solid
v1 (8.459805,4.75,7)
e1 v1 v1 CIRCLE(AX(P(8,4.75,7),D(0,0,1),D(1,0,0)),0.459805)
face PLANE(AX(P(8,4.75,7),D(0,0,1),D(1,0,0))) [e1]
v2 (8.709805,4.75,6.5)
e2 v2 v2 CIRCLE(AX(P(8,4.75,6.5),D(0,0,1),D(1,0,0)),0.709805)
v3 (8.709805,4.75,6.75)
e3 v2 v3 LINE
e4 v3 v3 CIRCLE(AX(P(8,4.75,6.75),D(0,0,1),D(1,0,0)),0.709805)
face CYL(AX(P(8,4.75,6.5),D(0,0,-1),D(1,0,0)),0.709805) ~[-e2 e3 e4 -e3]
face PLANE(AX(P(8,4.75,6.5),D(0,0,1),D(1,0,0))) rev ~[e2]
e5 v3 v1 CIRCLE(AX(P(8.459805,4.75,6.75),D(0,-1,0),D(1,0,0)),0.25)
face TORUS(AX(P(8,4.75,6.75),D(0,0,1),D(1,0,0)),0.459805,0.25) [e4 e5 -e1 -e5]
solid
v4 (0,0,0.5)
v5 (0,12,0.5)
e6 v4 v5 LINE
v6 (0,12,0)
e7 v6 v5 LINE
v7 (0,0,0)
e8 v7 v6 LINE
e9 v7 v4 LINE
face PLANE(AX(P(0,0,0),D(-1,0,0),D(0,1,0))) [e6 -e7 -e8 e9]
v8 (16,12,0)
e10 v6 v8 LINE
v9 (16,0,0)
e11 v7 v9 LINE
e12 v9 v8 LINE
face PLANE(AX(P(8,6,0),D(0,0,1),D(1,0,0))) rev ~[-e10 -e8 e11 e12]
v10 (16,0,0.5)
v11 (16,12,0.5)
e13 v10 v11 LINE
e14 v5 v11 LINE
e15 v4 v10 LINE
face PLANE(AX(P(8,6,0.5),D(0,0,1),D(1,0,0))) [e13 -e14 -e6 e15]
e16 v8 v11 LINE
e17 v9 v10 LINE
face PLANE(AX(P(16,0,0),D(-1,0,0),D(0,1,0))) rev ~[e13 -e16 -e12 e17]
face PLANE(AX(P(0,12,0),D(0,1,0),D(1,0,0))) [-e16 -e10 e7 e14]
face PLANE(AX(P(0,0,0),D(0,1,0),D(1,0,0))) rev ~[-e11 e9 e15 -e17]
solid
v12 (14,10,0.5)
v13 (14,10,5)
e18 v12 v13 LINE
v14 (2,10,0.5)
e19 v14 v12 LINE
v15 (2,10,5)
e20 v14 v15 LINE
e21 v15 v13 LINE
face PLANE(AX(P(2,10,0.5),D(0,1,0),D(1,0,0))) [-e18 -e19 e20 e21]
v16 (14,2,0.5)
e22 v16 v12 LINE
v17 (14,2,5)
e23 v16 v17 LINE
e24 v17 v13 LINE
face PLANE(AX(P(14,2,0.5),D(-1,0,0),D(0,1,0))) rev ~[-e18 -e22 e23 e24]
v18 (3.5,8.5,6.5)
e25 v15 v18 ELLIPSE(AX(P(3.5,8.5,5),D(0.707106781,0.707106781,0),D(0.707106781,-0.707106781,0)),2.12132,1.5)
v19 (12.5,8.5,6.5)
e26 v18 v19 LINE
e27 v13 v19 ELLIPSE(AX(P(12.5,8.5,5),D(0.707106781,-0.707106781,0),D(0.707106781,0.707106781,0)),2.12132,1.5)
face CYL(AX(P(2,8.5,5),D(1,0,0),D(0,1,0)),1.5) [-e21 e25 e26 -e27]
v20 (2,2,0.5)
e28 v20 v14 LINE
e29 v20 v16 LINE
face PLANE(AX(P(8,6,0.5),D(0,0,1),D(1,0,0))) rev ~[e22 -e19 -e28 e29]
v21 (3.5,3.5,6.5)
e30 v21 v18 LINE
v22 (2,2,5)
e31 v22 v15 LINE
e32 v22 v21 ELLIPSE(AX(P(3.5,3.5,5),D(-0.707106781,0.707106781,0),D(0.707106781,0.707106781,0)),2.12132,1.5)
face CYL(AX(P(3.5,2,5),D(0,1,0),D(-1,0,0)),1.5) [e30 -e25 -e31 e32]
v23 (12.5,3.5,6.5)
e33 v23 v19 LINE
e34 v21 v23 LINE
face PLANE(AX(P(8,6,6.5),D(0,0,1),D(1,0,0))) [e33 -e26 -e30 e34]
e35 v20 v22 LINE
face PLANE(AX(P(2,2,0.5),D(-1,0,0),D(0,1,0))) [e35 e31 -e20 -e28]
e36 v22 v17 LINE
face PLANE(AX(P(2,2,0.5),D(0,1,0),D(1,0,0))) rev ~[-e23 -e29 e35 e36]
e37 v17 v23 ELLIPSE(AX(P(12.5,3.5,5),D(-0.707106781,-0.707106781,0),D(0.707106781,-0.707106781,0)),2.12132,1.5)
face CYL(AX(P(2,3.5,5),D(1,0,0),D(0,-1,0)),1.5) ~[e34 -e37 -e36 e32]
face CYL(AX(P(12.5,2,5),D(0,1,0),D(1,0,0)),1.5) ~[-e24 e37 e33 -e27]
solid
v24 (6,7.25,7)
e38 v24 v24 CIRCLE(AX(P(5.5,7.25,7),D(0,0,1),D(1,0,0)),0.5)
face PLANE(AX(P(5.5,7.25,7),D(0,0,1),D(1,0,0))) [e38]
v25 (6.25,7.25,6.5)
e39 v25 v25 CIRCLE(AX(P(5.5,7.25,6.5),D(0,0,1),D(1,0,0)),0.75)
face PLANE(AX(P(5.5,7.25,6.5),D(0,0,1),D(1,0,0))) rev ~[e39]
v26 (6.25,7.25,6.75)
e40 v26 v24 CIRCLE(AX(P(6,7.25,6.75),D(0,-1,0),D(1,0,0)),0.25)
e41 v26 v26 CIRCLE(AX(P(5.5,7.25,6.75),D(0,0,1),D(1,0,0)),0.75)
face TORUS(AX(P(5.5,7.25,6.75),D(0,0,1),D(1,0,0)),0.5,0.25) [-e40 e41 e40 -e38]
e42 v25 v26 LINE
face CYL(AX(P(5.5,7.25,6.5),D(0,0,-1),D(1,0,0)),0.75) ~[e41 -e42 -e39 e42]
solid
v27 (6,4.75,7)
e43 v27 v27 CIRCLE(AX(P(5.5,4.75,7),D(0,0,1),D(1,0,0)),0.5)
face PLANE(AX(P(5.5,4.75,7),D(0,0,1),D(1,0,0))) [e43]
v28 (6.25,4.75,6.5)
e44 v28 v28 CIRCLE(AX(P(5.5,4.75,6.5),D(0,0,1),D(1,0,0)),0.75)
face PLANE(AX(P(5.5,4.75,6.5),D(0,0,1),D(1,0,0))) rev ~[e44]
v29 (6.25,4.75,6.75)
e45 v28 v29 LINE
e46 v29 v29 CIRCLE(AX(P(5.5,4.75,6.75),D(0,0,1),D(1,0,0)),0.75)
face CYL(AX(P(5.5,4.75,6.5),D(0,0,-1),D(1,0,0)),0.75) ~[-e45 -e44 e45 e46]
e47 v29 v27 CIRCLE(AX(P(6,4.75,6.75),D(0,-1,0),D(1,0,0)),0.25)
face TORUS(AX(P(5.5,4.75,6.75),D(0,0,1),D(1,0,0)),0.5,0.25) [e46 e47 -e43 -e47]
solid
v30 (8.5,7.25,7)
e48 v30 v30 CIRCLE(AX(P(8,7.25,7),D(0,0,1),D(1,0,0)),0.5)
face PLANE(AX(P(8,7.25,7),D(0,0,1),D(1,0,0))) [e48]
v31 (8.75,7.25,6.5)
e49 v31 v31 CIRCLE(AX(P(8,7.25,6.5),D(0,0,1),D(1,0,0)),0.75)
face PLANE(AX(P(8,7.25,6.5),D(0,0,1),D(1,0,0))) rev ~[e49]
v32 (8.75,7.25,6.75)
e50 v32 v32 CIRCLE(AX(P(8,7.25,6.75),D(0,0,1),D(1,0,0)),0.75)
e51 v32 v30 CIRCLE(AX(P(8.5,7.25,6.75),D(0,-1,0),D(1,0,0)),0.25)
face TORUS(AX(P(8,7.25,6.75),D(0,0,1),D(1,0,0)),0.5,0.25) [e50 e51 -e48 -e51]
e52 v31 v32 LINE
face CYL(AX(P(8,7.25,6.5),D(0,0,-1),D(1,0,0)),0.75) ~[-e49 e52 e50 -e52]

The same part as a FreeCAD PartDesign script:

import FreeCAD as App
import Part
import Sketcher


def edges_at(feature, points):
    """Names of the edges that pass closest to the given points."""
    edges = feature.Shape.Edges
    near = lambda p: min(range(len(edges)), key=lambda i: edges[i].distToShape(Part.Vertex(*p))[0])
    return sorted({f"Edge{near(p) + 1}" for p in points})

doc = App.newDocument("Part")
body = doc.addObject("PartDesign::Body", "Body")

# Sketch on XY plane
sketch1 = doc.addObject("Sketcher::SketchObject", "Sketch")
body.addObject(sketch1)
sketch1.AttachmentSupport = (doc.XY_Plane, [""])
sketch1.MapMode = "FlatFace"
sketch1.addGeometry(Part.LineSegment(App.Vector(0, 12, 0), App.Vector(0, 0, 0)), False)
sketch1.addGeometry(Part.LineSegment(App.Vector(0, 0, 0), App.Vector(16, 0, 0)), False)
sketch1.addGeometry(Part.LineSegment(App.Vector(16, 0, 0), App.Vector(16, 12, 0)), False)
sketch1.addGeometry(Part.LineSegment(App.Vector(16, 12, 0), App.Vector(0, 12, 0)), False)
sketch1.addConstraint(Sketcher.Constraint("Coincident", 0, 2, 1, 1))
sketch1.addConstraint(Sketcher.Constraint("Coincident", 1, 2, 2, 1))
sketch1.addConstraint(Sketcher.Constraint("Coincident", 2, 2, 3, 1))
sketch1.addConstraint(Sketcher.Constraint("Coincident", 3, 2, 0, 1))
sketch1.addConstraint(Sketcher.Constraint("Vertical", 0))
sketch1.addConstraint(Sketcher.Constraint("Horizontal", 1))
sketch1.addConstraint(Sketcher.Constraint("Vertical", 2))
sketch1.addConstraint(Sketcher.Constraint("Horizontal", 3))
sketch1.addConstraint(Sketcher.Constraint("Coincident", 0, 2, -1, 1))
sketch1.addConstraint(Sketcher.Constraint("DistanceX", 1, 1, 1, 2, 16.0))
sketch1.addConstraint(Sketcher.Constraint("DistanceY", 0, 2, 0, 1, 12.0))
pad1 = doc.addObject("PartDesign::Pad", "Pad")
body.addObject(pad1)
pad1.Profile = sketch1
pad1.Length = 0.5
body2 = doc.addObject("PartDesign::Body", "Body001")

# Sketch on XY plane
sketch2 = doc.addObject("Sketcher::SketchObject", "Sketch001")
body2.addObject(sketch2)
sketch2.AttachmentSupport = (doc.getObject("XY_Plane001"), [""])
sketch2.MapMode = "FlatFace"
sketch2.AttachmentOffset = App.Placement(App.Vector(0, 0, 0.5), App.Rotation())
sketch2.addGeometry(Part.LineSegment(App.Vector(2, 10, 0), App.Vector(2, 2, 0)), False)
sketch2.addGeometry(Part.LineSegment(App.Vector(2, 2, 0), App.Vector(14, 2, 0)), False)
sketch2.addGeometry(Part.LineSegment(App.Vector(14, 2, 0), App.Vector(14, 10, 0)), False)
sketch2.addGeometry(Part.LineSegment(App.Vector(14, 10, 0), App.Vector(2, 10, 0)), False)
sketch2.addConstraint(Sketcher.Constraint("Coincident", 0, 2, 1, 1))
sketch2.addConstraint(Sketcher.Constraint("Coincident", 1, 2, 2, 1))
sketch2.addConstraint(Sketcher.Constraint("Coincident", 2, 2, 3, 1))
sketch2.addConstraint(Sketcher.Constraint("Coincident", 3, 2, 0, 1))
sketch2.addConstraint(Sketcher.Constraint("Vertical", 0))
sketch2.addConstraint(Sketcher.Constraint("Horizontal", 1))
sketch2.addConstraint(Sketcher.Constraint("Vertical", 2))
sketch2.addConstraint(Sketcher.Constraint("Horizontal", 3))
sketch2.addConstraint(Sketcher.Constraint("DistanceX", 1, 1, 1, 2, 12.0))
sketch2.addConstraint(Sketcher.Constraint("DistanceY", 0, 2, 0, 1, 8.0))
sketch2.addConstraint(Sketcher.Constraint("DistanceX", -1, 1, 0, 2, 2.0))
sketch2.addConstraint(Sketcher.Constraint("DistanceY", -1, 1, 0, 2, 2.0))
pad2 = doc.addObject("PartDesign::Pad", "Pad001")
body2.addObject(pad2)
pad2.Profile = sketch2
pad2.Length = 6
doc.recompute()

fillet = doc.addObject("PartDesign::Fillet", "Fillet")
body2.addObject(fillet)
fillet.Base = (pad2, edges_at(pad2, [
    (8, 2, 6.5),
    (14, 6, 6.5),
    (8, 10, 6.5),
    (2, 6, 6.5),
]))
fillet.Radius = 1.5
body3 = doc.addObject("PartDesign::Body", "Body002")

# Sketch on XY plane
sketch3 = doc.addObject("Sketcher::SketchObject", "Sketch002")
body3.addObject(sketch3)
sketch3.AttachmentSupport = (doc.getObject("XY_Plane002"), [""])
sketch3.MapMode = "FlatFace"
sketch3.AttachmentOffset = App.Placement(App.Vector(0, 0, 6.5), App.Rotation())
sketch3.addGeometry(Part.Circle(App.Vector(5.5, 4.8, 0), App.Vector(0, 0, 1), 0.8), False)
sketch3.addConstraint(Sketcher.Constraint("Diameter", 0, 1.5))
sketch3.addConstraint(Sketcher.Constraint("DistanceX", -1, 1, 0, 3, 5.5))
sketch3.addConstraint(Sketcher.Constraint("DistanceY", -1, 1, 0, 3, 4.75))
pad3 = doc.addObject("PartDesign::Pad", "Pad002")
body3.addObject(pad3)
pad3.Profile = sketch3
pad3.Length = 0.5
doc.recompute()

fillet2 = doc.addObject("PartDesign::Fillet", "Fillet001")
body3.addObject(fillet2)
fillet2.Base = (pad3, edges_at(pad3, [(4.75, 4.75, 7)]))
fillet2.Radius = 0.25
body4 = doc.addObject("PartDesign::Body", "Body003")

# Sketch on XY plane
sketch4 = doc.addObject("Sketcher::SketchObject", "Sketch003")
body4.addObject(sketch4)
sketch4.AttachmentSupport = (doc.getObject("XY_Plane003"), [""])
sketch4.MapMode = "FlatFace"
sketch4.AttachmentOffset = App.Placement(App.Vector(0, 0, 6.5), App.Rotation())
sketch4.addGeometry(Part.Circle(App.Vector(8, 4.8, 0), App.Vector(0, 0, 1), 0.7), False)
sketch4.addConstraint(Sketcher.Constraint("DistanceX", -1, 1, 0, 3, 8.0))
sketch4.addConstraint(Sketcher.Constraint("Diameter", 0, 1.41961))
sketch4.addConstraint(Sketcher.Constraint("DistanceY", -1, 1, 0, 3, 4.75))
pad4 = doc.addObject("PartDesign::Pad", "Pad003")
body4.addObject(pad4)
pad4.Profile = sketch4
pad4.Length = 0.5
doc.recompute()

fillet3 = doc.addObject("PartDesign::Fillet", "Fillet002")
body4.addObject(fillet3)
fillet3.Base = (pad4, edges_at(pad4, [(7.29, 4.75, 7)]))
fillet3.Radius = 0.25
body5 = doc.addObject("PartDesign::Body", "Body004")

# Sketch on XY plane
sketch5 = doc.addObject("Sketcher::SketchObject", "Sketch004")
body5.addObject(sketch5)
sketch5.AttachmentSupport = (doc.getObject("XY_Plane004"), [""])
sketch5.MapMode = "FlatFace"
sketch5.AttachmentOffset = App.Placement(App.Vector(0, 0, 6.5), App.Rotation())
sketch5.addGeometry(Part.Circle(App.Vector(5.5, 7.2, 0), App.Vector(0, 0, 1), 0.8), False)
sketch5.addConstraint(Sketcher.Constraint("Diameter", 0, 1.5))
sketch5.addConstraint(Sketcher.Constraint("DistanceX", -1, 1, 0, 3, 5.5))
sketch5.addConstraint(Sketcher.Constraint("DistanceY", -1, 1, 0, 3, 7.25))
pad5 = doc.addObject("PartDesign::Pad", "Pad004")
body5.addObject(pad5)
pad5.Profile = sketch5
pad5.Length = 0.5
doc.recompute()

fillet4 = doc.addObject("PartDesign::Fillet", "Fillet003")
body5.addObject(fillet4)
fillet4.Base = (pad5, edges_at(pad5, [(4.75, 7.25, 7)]))
fillet4.Radius = 0.25
body6 = doc.addObject("PartDesign::Body", "Body005")

# Sketch on XY plane
sketch6 = doc.addObject("Sketcher::SketchObject", "Sketch005")
body6.addObject(sketch6)
sketch6.AttachmentSupport = (doc.getObject("XY_Plane005"), [""])
sketch6.MapMode = "FlatFace"
sketch6.AttachmentOffset = App.Placement(App.Vector(0, 0, 6.5), App.Rotation())
sketch6.addGeometry(Part.Circle(App.Vector(8, 7.2, 0), App.Vector(0, 0, 1), 0.8), False)
sketch6.addConstraint(Sketcher.Constraint("Diameter", 0, 1.5))
sketch6.addConstraint(Sketcher.Constraint("DistanceX", -1, 1, 0, 3, 8.0))
sketch6.addConstraint(Sketcher.Constraint("DistanceY", -1, 1, 0, 3, 7.25))
pad6 = doc.addObject("PartDesign::Pad", "Pad005")
body6.addObject(pad6)
pad6.Profile = sketch6
pad6.Length = 0.5
doc.recompute()

fillet5 = doc.addObject("PartDesign::Fillet", "Fillet004")
body6.addObject(fillet5)
fillet5.Base = (pad6, edges_at(pad6, [(7.25, 7.25, 7)]))
fillet5.Radius = 0.25

doc.recompute()
